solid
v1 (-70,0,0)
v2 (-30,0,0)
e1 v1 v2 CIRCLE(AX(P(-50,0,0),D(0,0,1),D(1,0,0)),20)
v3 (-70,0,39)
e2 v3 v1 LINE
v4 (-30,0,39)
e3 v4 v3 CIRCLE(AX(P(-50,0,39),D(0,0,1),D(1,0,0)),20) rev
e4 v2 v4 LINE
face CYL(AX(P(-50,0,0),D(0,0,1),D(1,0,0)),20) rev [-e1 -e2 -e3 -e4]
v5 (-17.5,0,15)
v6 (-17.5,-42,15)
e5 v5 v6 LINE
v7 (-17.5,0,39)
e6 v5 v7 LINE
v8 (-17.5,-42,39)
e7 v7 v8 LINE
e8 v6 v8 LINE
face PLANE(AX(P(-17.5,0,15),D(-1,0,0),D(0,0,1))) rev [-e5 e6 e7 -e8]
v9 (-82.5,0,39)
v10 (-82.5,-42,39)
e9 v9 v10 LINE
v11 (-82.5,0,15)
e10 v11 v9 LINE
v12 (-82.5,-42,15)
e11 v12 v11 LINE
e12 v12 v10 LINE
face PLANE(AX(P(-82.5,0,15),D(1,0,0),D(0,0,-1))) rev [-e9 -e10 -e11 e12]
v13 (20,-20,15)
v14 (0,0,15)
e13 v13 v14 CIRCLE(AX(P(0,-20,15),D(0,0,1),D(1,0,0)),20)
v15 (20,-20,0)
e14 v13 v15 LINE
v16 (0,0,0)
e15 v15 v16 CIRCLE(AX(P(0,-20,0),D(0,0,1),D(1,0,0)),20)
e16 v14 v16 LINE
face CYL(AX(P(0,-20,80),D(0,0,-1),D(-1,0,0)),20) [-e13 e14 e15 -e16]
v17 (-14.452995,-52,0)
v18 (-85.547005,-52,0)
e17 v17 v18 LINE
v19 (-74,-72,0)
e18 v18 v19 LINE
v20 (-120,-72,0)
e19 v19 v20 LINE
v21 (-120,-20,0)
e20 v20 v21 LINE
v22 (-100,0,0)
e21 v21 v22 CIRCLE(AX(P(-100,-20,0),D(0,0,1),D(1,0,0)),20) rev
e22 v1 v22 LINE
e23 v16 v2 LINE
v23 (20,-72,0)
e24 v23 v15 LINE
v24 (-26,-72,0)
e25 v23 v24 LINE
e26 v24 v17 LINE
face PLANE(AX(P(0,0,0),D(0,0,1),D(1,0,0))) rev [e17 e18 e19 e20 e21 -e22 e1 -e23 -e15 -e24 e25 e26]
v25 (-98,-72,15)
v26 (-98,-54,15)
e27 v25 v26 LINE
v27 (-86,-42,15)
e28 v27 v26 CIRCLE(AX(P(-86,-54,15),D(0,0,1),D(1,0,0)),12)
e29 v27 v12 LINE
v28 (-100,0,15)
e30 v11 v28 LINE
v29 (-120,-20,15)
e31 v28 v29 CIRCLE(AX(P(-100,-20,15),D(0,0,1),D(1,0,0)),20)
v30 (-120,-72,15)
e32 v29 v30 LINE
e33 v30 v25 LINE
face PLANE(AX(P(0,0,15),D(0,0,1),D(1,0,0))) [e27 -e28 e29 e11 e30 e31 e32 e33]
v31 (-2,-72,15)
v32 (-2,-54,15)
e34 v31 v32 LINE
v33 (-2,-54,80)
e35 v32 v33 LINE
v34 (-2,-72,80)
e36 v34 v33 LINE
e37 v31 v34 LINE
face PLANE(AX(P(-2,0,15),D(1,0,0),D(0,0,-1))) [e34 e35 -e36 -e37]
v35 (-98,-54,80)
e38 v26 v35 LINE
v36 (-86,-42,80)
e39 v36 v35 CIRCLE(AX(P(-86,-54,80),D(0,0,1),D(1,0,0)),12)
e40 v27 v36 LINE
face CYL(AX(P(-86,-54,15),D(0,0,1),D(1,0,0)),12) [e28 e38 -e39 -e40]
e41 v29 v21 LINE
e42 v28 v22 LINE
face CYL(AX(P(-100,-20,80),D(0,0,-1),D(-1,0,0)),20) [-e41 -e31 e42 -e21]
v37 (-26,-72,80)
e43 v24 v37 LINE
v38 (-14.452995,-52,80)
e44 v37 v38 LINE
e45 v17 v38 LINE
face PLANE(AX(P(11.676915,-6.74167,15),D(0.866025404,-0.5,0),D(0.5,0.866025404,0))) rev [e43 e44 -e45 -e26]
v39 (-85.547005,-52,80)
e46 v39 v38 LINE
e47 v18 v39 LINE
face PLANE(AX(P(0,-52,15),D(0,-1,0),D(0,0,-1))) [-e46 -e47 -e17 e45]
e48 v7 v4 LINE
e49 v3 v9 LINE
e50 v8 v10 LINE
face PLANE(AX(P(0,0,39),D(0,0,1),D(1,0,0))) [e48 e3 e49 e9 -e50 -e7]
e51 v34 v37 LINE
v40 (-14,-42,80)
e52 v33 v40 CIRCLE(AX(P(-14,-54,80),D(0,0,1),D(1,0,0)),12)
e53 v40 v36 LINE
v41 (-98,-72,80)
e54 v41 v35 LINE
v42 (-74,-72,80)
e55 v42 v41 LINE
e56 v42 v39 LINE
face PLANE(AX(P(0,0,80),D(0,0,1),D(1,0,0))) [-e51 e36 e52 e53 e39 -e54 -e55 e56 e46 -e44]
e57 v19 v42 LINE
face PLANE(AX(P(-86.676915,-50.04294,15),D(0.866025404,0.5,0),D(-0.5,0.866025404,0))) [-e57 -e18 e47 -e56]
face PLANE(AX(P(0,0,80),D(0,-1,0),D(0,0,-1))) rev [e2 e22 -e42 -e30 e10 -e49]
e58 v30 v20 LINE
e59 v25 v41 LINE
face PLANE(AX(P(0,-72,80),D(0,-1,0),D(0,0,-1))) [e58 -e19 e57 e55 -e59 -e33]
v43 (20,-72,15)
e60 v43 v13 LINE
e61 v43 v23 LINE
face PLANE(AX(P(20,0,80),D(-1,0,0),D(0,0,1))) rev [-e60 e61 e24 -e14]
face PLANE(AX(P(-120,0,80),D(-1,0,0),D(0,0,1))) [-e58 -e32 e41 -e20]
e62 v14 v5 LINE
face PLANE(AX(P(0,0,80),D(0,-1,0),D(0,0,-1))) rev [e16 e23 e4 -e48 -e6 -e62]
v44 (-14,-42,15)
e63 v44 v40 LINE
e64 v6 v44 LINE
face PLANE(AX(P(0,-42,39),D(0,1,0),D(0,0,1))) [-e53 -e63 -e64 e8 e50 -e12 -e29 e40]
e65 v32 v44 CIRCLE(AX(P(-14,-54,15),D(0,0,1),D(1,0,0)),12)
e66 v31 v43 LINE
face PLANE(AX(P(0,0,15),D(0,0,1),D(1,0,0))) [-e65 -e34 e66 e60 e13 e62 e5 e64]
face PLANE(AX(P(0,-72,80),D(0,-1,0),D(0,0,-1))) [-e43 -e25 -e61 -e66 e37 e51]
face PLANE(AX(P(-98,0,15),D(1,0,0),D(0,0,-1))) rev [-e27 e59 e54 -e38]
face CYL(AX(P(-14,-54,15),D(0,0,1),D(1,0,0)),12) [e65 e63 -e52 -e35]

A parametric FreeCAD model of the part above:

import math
import FreeCAD as App
import Part
import Sketcher
Q = App.Units.Quantity

doc = App.newDocument("Part")
body = doc.addObject("PartDesign::Body", "Body")

# Sketch on XY plane
sketch1 = doc.addObject("Sketcher::SketchObject", "Sketch")
body.addObject(sketch1)
sketch1.AttachmentSupport = (doc.XY_Plane, [""])
sketch1.MapMode = "FlatFace"
sketch1.addGeometry([
    Part.LineSegment(App.Vector(-120, -72, 0), App.Vector(20, -72, 0)),  # 0
    Part.LineSegment(App.Vector(20, -72, 0), App.Vector(20, -20, 0)),  # 1
    Part.ArcOfCircle(Part.Circle(App.Vector(0, -20, 0), App.Vector(0, 0, 1), 20), math.radians(0), math.radians(90)),  # 2
    Part.LineSegment(App.Vector(0, 0, 0), App.Vector(-100, 0, 0)),  # 3
    Part.ArcOfCircle(Part.Circle(App.Vector(-100, -20, 0), App.Vector(0, 0, 1), 20), math.radians(90), math.radians(180)),  # 4
    Part.LineSegment(App.Vector(-120, -20, 0), App.Vector(-120, -72, 0)),  # 5
], False)
sketch1.addConstraint([
    Sketcher.Constraint("Coincident", 0, 2, 1, 1),
    Sketcher.Constraint("Tangent", 1, 2, 2, 1),
    Sketcher.Constraint("Tangent", 2, 2, 3, 1),
    Sketcher.Constraint("Tangent", 3, 2, 4, 1),
    Sketcher.Constraint("Tangent", 4, 2, 5, 1),
    Sketcher.Constraint("Coincident", 5, 2, 0, 1),
    Sketcher.Constraint("Horizontal", 0),
    Sketcher.Constraint("Vertical", 1),
    Sketcher.Constraint("Horizontal", 3),
    Sketcher.Constraint("Vertical", 5),
    Sketcher.Constraint("Coincident", 2, 2, -1, 1),
    Sketcher.Constraint("Equal", 2, 4),
    Sketcher.Constraint("Radius", 2, 20.0),
    Sketcher.Constraint("DistanceX", 0, 1, 0, 2, 140.0),
    Sketcher.Constraint("DistanceY", 1, 1, 1, 2, 52.0),
])
pad1 = doc.addObject("PartDesign::Pad", "Pad")
body.addObject(pad1)
pad1.Profile = sketch1
pad1.Length = 80

# Sketch on XY plane
sketch2 = doc.addObject("Sketcher::SketchObject", "Sketch001")
body.addObject(sketch2)
sketch2.AttachmentSupport = (doc.XY_Plane, [""])
sketch2.MapMode = "FlatFace"
sketch2.AttachmentOffset = App.Placement(App.Vector(0, 0, 80), App.Rotation())
sketch2.addGeometry(Part.Circle(App.Vector(-50, 0, 0), App.Vector(0, 0, 1), 20), False)
sketch2.addConstraint([
    Sketcher.Constraint("PointOnObject", 0, 3, -1),
    Sketcher.Constraint("Diameter", 0, 40.0),
    Sketcher.Constraint("DistanceX", 0, 3, -1, 1, 50.0),
])
pocket1 = doc.addObject("PartDesign::Pocket", "Pocket")
body.addObject(pocket1)
pocket1.Profile = sketch2
pocket1.Type = "ThroughAll"

# Sketch on XY plane
sketch3 = doc.addObject("Sketcher::SketchObject", "Sketch002")
body.addObject(sketch3)
sketch3.AttachmentSupport = (doc.XY_Plane, [""])
sketch3.MapMode = "FlatFace"
sketch3.AttachmentOffset = App.Placement(App.Vector(0, 0, 80), App.Rotation())
sketch3.addGeometry([
    Part.ArcOfCircle(Part.Circle(App.Vector(-50, 0, 0), App.Vector(0, 0, 1), 20), math.radians(180), math.radians(360)),  # 0
    Part.LineSegment(App.Vector(-70, 0, 0), App.Vector(-82, 0, 0)),  # 1
    Part.LineSegment(App.Vector(-82, 0, 0), App.Vector(-82, -42, 0)),  # 2
    Part.LineSegment(App.Vector(-82, -42, 0), App.Vector(-18, -42, 0)),  # 3
    Part.LineSegment(App.Vector(-18, -42, 0), App.Vector(-18, 0, 0)),  # 4
    Part.LineSegment(App.Vector(-18, 0, 0), App.Vector(-30, 0, 0)),  # 5
], False)
sketch3.addConstraint([
    Sketcher.Constraint("Coincident", 0, 1, 1, 1),
    Sketcher.Constraint("Coincident", 1, 2, 2, 1),
    Sketcher.Constraint("Coincident", 2, 2, 3, 1),
    Sketcher.Constraint("Coincident", 3, 2, 4, 1),
    Sketcher.Constraint("Coincident", 4, 2, 5, 1),
    Sketcher.Constraint("Coincident", 5, 2, 0, 2),
    Sketcher.Constraint("Horizontal", 1),
    Sketcher.Constraint("Vertical", 2),
    Sketcher.Constraint("Horizontal", 3),
    Sketcher.Constraint("Vertical", 4),
    Sketcher.Constraint("Horizontal", 5),
    Sketcher.Constraint("PointOnObject", 0, 3, -1),
    Sketcher.Constraint("PointOnObject", 0, 1, -1),
    Sketcher.Constraint("PointOnObject", 4, 2, -1),
    Sketcher.Constraint("Equal", 1, 5),
    Sketcher.Constraint("Radius", 0, 20.0),
    Sketcher.Constraint("DistanceX", 3, 1, 3, 2, 65.0),
    Sketcher.Constraint("DistanceY", 2, 2, 2, 1, 42.0),
    Sketcher.Constraint("DistanceX", 0, 3, -1, 1, 50.0),
])
pocket2 = doc.addObject("PartDesign::Pocket", "Pocket001")
body.addObject(pocket2)
pocket2.Profile = sketch3
pocket2.Length = 41

# Sketch on XY plane
sketch4 = doc.addObject("Sketcher::SketchObject", "Sketch003")
body.addObject(sketch4)
sketch4.AttachmentSupport = (doc.XY_Plane, [""])
sketch4.MapMode = "FlatFace"
sketch4.AttachmentOffset = App.Placement(App.Vector(0, 0, 80), App.Rotation())
sketch4.addGeometry([
    Part.LineSegment(App.Vector(-120, -20, 0), App.Vector(-120, -72, 0)),  # 0
    Part.LineSegment(App.Vector(-120, -72, 0), App.Vector(-98, -72, 0)),  # 1
    Part.LineSegment(App.Vector(-98, -72, 0), App.Vector(-98, -54, 0)),  # 2
    Part.ArcOfCircle(Part.Circle(App.Vector(-86, -54, 0), App.Vector(0, 0, 1), 12), math.radians(90), math.radians(180)),  # 3
    Part.LineSegment(App.Vector(-86, -42, 0), App.Vector(-82.5, -42, 0)),  # 4
    Part.LineSegment(App.Vector(-82.5, -42, 0), App.Vector(-82.5, 0, 0)),  # 5
    Part.LineSegment(App.Vector(-82.5, 0, 0), App.Vector(-100, 0, 0)),  # 6
    Part.ArcOfCircle(Part.Circle(App.Vector(-100, -20, 0), App.Vector(0, 0, 1), 20), math.radians(90), math.radians(180)),  # 7
    Part.LineSegment(App.Vector(-2, -54, 0), App.Vector(-2, -72, 0)),  # 8
    Part.LineSegment(App.Vector(-2, -72, 0), App.Vector(20, -72, 0)),  # 9
    Part.LineSegment(App.Vector(20, -72, 0), App.Vector(20, -20, 0)),  # 10
    Part.ArcOfCircle(Part.Circle(App.Vector(0, -20, 0), App.Vector(0, 0, 1), 20), math.radians(0), math.radians(90)),  # 11
    Part.LineSegment(App.Vector(0, 0, 0), App.Vector(-17.5, 0, 0)),  # 12
    Part.LineSegment(App.Vector(-17.5, 0, 0), App.Vector(-17.5, -42, 0)),  # 13
    Part.LineSegment(App.Vector(-17.5, -42, 0), App.Vector(-14, -42, 0)),  # 14
    Part.ArcOfCircle(Part.Circle(App.Vector(-14, -54, 0), App.Vector(0, 0, 1), 12), math.radians(0), math.radians(90)),  # 15
    Part.LineSegment(App.Vector(-85.5, -52, 0), App.Vector(-74, -72, 0)),  # 16
    Part.LineSegment(App.Vector(-74, -72, 0), App.Vector(-26, -72, 0)),  # 17
    Part.LineSegment(App.Vector(-26, -72, 0), App.Vector(-14.5, -52, 0)),  # 18
    Part.LineSegment(App.Vector(-14.5, -52, 0), App.Vector(-85.5, -52, 0)),  # 19
], False)
sketch4.addConstraint([
    Sketcher.Constraint("Coincident", 0, 2, 1, 1),
    Sketcher.Constraint("Coincident", 1, 2, 2, 1),
    Sketcher.Constraint("Tangent", 2, 2, 3, 2),
    Sketcher.Constraint("Tangent", 3, 1, 4, 1),
    Sketcher.Constraint("Coincident", 4, 2, 5, 1),
    Sketcher.Constraint("Coincident", 5, 2, 6, 1),
    Sketcher.Constraint("Tangent", 6, 2, 7, 1),
    Sketcher.Constraint("Tangent", 7, 2, 0, 1),
    Sketcher.Constraint("Coincident", 8, 2, 9, 1),
    Sketcher.Constraint("Coincident", 9, 2, 10, 1),
    Sketcher.Constraint("Tangent", 10, 2, 11, 1),
    Sketcher.Constraint("Tangent", 11, 2, 12, 1),
    Sketcher.Constraint("Coincident", 12, 2, 13, 1),
    Sketcher.Constraint("Coincident", 13, 2, 14, 1),
    Sketcher.Constraint("Tangent", 14, 2, 15, 2),
    Sketcher.Constraint("Tangent", 15, 1, 8, 1),
    Sketcher.Constraint("Coincident", 16, 2, 17, 1),
    Sketcher.Constraint("Coincident", 17, 2, 18, 1),
    Sketcher.Constraint("Coincident", 18, 2, 19, 1),
    Sketcher.Constraint("Coincident", 19, 2, 16, 1),
    Sketcher.Constraint("Vertical", 0),
    Sketcher.Constraint("Horizontal", 1),
    Sketcher.Constraint("Vertical", 2),
    Sketcher.Constraint("Horizontal", 4),
    Sketcher.Constraint("Vertical", 5),
    Sketcher.Constraint("Horizontal", 6),
    Sketcher.Constraint("Vertical", 8),
    Sketcher.Constraint("Horizontal", 9),
    Sketcher.Constraint("Vertical", 10),
    Sketcher.Constraint("Horizontal", 12),
    Sketcher.Constraint("Vertical", 13),
    Sketcher.Constraint("Horizontal", 14),
    Sketcher.Constraint("Horizontal", 17),
    Sketcher.Constraint("Horizontal", 19),
    Sketcher.Constraint("Coincident", 11, 2, -1, 1),
    Sketcher.Constraint("Equal", 7, 11),
    Sketcher.Constraint("Equal", 3, 15),
    Sketcher.Constraint("PointOnObject", 5, 2, -1),
    Sketcher.Constraint("Horizontal", 3, 3, 15, 3),
    Sketcher.Constraint("Horizontal", 1, 2, 8, 2),
    Sketcher.Constraint("Horizontal", 9, 2, 16, 2),
    Sketcher.Constraint("Equal", 1, 9),
    Sketcher.Constraint("Equal", 6, 12),
    Sketcher.Constraint("Equal", 16, 18),
    Sketcher.Constraint("Radius", 3, 12.0),
    Sketcher.Constraint("Radius", 7, 20.0),
    Sketcher.Constraint("DistanceX", 1, 1, 1, 2, 22.0),
    Sketcher.Constraint("DistanceX", 17, 1, 17, 2, 48.0),
    Sketcher.Constraint("DistanceY", 0, 2, 0, 1, 52.0),
    Sketcher.Constraint("DistanceY", 2, 1, 2, 2, 18.0),
    Sketcher.Constraint("Angle", 16, Q("-60 deg")),
    Sketcher.Constraint("DistanceX", 4, 1, 4, 2, 3.5),
    Sketcher.Constraint("DistanceX", 3, 3, -1, 1, 86.0),
    Sketcher.Constraint("DistanceX", 16, 2, -1, 1, 74.0),
    Sketcher.Constraint("DistanceY", 18, 2, -1, 1, 52.0),
])
pocket3 = doc.addObject("PartDesign::Pocket", "Pocket002")
body.addObject(pocket3)
pocket3.Profile = sketch4
pocket3.Length = 65

# Sketch on XY plane
sketch5 = doc.addObject("Sketcher::SketchObject", "Sketch004")
body.addObject(sketch5)
sketch5.AttachmentSupport = (doc.XY_Plane, [""])
sketch5.MapMode = "FlatFace"
sketch5.addGeometry([
    Part.LineSegment(App.Vector(-86, -52, 0), App.Vector(-74, -72, 0)),
    Part.LineSegment(App.Vector(-74, -72, 0), App.Vector(-26, -72, 0)),
    Part.LineSegment(App.Vector(-26, -72, 0), App.Vector(-14, -52, 0)),
    Part.LineSegment(App.Vector(-14, -52, 0), App.Vector(-86, -52, 0)),
], False)
sketch5.addConstraint([
    Sketcher.Constraint("Coincident", 0, 2, 1, 1),
    Sketcher.Constraint("Coincident", 1, 2, 2, 1),
    Sketcher.Constraint("Coincident", 2, 2, 3, 1),
    Sketcher.Constraint("Coincident", 3, 2, 0, 1),
    Sketcher.Constraint("Horizontal", 1),
    Sketcher.Constraint("Horizontal", 3),
    Sketcher.Constraint("Equal", 0, 2),
    Sketcher.Constraint("DistanceX", 1, 1, 1, 2, 48.0),
    Sketcher.Constraint("Angle", 0, Q("-60 deg")),
    Sketcher.Constraint("DistanceX", 0, 2, -1, 1, 74.0),
    Sketcher.Constraint("DistanceY", 0, 2, -1, 1, 72.0),
    Sketcher.Constraint("DistanceY", 2, 2, -1, 1, 52.0),
])
pocket4 = doc.addObject("PartDesign::Pocket", "Pocket003")
body.addObject(pocket4)
pocket4.Profile = sketch5
pocket4.Type = "ThroughAll"
pocket4.Midplane = True

doc.recompute()
